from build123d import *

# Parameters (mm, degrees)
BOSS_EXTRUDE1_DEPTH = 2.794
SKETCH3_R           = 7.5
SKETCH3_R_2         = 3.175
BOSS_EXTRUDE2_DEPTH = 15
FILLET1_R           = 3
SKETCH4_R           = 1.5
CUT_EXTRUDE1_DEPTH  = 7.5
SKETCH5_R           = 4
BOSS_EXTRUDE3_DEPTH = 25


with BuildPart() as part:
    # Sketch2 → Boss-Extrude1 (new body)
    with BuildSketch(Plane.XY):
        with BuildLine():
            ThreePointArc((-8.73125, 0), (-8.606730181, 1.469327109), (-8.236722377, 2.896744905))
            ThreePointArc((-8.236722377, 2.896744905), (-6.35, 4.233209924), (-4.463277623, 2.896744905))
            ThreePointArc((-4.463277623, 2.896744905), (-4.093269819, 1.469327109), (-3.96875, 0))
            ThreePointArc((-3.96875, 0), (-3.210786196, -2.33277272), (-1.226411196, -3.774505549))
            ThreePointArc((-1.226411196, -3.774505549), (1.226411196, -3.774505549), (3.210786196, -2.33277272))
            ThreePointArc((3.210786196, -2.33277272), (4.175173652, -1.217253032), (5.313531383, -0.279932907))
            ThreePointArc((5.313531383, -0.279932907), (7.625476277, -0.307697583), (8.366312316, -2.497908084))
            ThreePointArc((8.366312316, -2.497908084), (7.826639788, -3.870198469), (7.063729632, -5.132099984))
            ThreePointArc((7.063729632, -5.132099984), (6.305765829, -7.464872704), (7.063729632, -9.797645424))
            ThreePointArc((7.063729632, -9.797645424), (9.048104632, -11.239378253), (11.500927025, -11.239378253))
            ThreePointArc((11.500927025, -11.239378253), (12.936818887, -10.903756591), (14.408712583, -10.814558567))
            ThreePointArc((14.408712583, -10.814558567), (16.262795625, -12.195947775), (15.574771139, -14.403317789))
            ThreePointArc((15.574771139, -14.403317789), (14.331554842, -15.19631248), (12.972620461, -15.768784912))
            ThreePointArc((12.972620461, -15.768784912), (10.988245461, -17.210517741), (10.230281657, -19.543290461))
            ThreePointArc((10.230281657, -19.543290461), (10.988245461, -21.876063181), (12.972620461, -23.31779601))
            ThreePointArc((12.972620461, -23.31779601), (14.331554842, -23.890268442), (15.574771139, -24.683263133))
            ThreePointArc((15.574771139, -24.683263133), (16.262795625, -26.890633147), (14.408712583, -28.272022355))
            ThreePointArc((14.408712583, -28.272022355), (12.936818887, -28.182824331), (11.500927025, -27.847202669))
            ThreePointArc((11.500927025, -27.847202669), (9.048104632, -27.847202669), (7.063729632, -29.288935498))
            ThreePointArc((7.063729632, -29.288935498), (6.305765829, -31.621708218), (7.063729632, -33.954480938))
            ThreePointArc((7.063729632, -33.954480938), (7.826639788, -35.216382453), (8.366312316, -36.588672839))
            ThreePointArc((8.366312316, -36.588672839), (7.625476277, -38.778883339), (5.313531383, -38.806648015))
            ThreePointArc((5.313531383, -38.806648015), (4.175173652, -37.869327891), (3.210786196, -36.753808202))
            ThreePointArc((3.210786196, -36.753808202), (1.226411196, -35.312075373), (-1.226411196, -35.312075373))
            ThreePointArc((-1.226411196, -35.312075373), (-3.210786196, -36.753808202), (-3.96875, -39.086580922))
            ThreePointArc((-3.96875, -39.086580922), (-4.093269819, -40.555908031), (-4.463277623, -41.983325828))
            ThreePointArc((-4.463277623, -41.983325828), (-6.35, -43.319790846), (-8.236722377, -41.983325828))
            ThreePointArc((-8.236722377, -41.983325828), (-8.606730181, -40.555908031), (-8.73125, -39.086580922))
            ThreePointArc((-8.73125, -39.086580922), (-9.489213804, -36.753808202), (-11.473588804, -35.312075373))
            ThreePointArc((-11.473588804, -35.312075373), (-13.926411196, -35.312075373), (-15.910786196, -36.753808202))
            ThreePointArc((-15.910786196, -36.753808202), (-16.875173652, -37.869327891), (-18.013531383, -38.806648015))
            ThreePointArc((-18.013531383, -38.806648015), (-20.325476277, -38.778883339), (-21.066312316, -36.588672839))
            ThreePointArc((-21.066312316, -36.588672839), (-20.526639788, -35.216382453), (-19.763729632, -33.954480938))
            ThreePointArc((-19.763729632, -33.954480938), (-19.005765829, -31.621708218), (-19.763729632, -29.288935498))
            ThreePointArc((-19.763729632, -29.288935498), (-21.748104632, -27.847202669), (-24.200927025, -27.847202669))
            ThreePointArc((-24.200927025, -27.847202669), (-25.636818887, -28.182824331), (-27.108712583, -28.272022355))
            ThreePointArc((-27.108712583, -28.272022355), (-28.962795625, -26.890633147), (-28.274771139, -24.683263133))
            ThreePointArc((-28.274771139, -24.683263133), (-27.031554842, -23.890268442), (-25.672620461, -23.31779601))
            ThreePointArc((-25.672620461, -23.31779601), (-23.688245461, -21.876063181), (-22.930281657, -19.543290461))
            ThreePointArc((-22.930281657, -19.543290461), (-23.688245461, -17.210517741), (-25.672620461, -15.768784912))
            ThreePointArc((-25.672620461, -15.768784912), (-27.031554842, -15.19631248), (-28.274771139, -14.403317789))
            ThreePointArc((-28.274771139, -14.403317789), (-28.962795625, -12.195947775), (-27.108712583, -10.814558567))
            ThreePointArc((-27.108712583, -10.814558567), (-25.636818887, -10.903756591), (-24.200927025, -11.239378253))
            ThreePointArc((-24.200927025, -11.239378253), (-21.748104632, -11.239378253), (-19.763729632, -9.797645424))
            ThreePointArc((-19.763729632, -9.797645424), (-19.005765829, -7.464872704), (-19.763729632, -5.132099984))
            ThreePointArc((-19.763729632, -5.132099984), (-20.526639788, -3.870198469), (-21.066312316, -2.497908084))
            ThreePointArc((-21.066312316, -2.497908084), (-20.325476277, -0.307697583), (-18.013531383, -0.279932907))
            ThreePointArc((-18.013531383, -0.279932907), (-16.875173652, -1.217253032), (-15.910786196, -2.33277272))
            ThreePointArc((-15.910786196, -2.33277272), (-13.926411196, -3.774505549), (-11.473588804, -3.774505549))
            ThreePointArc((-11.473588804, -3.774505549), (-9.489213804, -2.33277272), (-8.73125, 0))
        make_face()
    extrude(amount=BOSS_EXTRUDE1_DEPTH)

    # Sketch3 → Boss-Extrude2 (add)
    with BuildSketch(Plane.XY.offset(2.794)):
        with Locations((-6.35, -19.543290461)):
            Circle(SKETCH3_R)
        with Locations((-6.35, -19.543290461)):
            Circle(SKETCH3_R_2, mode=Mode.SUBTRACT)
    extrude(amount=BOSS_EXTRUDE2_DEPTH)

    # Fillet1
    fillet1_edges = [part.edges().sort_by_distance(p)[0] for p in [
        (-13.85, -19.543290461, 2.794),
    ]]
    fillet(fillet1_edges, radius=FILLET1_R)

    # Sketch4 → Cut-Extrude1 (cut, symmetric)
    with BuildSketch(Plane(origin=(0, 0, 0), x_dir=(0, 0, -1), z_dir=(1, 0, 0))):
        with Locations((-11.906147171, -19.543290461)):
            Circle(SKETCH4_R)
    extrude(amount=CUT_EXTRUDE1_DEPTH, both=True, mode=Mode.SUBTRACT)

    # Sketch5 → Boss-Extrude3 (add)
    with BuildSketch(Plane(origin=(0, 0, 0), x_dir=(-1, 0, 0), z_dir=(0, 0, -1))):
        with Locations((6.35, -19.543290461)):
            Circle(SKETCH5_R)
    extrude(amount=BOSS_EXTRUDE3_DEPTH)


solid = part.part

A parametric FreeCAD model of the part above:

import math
import FreeCAD as App
import Part
import Sketcher

V = App.Vector


def edges_at(feature, points):
    """Names of the edges that pass closest to the given points."""
    edges = feature.Shape.Edges
    near = lambda p: min(range(len(edges)), key=lambda i: edges[i].distToShape(Part.Vertex(*p))[0])
    return sorted({f"Edge{near(p) + 1}" for p in points})

doc = App.newDocument("Part")
params = doc.addObject("Spreadsheet::Sheet", "Params")
for row, (alias, value) in enumerate([
    ("sketch1_radius", "2 mm"),
    ("pad1_length", "2.794 mm"),
    ("sketch2_diameter", "15 mm"),
    ("sketch2_diameter2", "6.35 mm"),
    ("pad2_length", "15 mm"),
    ("fillet_radius", "3 mm"),
    ("sketch3_diameter", "3 mm"),
    ("pocket1_length", "15 mm"),
    ("sketch4_diameter", "8 mm"),
    ("pad3_length", "25 mm"),
], start=1):
    params.set(f"A{row}", alias)
    params.set(f"B{row}", "=" + value)
    params.setAlias(f"B{row}", alias)

body = doc.addObject("PartDesign::Body", "Body")

# Sketch on XY plane
sketch1 = body.newObject("Sketcher::SketchObject", "Sketch")
sketch1.AttachmentSupport = (doc.getObject("XY_Plane"), [""])
sketch1.MapMode = "FlatFace"
sketch1.addGeometry(Part.ArcOfCircle(Part.Circle(V(0, 0, 0), V(0, 0, 1), 8.7), math.radians(160.62), math.radians(180)), False)
sketch1.addGeometry(Part.ArcOfCircle(Part.Circle(V(-12.7, 0, 0), V(0, 0, 1), 4), math.radians(-72), math.radians(0)), False)
sketch1.addGeometry(Part.ArcOfCircle(Part.Circle(V(-12.7, 0, 0), V(0, 0, 1), 4), math.radians(-144), math.radians(-72)), False)
sketch1.addGeometry(Part.ArcOfCircle(Part.Circle(V(-23, -7.5, 0), V(0, 0, 1), 8.7), math.radians(36), math.radians(55.38)), False)
sketch1.addGeometry(Part.ArcOfCircle(Part.Circle(V(-19.1, -1.9, 0), V(0, 0, 1), 2), math.radians(55), math.radians(197)), False)
sketch1.addGeometry(Part.ArcOfCircle(Part.Circle(V(-12.7, 0, 0), V(0, 0, 1), 8.7), math.radians(-163.38), math.radians(-144)), False)
sketch1.addGeometry(Part.ArcOfCircle(Part.Circle(V(-23, -7.5, 0), V(0, 0, 1), 4), math.radians(-36), math.radians(36)), False)
sketch1.addGeometry(Part.ArcOfCircle(Part.Circle(V(-23, -7.5, 0), V(0, 0, 1), 4), math.radians(-108), math.radians(-36)), False)
sketch1.addGeometry(Part.ArcOfCircle(Part.Circle(V(-26.9, -19.5, 0), V(0, 0, 1), 8.7), math.radians(72), math.radians(91.38)), False)
sketch1.addGeometry(Part.ArcOfCircle(Part.Circle(V(-27.1, -12.8, 0), V(0, 0, 1), 2), math.radians(91), math.radians(233)), False)
sketch1.addGeometry(Part.ArcOfCircle(Part.Circle(V(-23, -7.5, 0), V(0, 0, 1), 8.7), math.radians(-127.38), math.radians(-108)), False)
sketch1.addGeometry(Part.ArcOfCircle(Part.Circle(V(-26.9, -19.5, 0), V(0, 0, 1), 4), math.radians(0), math.radians(72)), False)
sketch1.addGeometry(Part.ArcOfCircle(Part.Circle(V(-26.9, -19.5, 0), V(0, 0, 1), 4), math.radians(-72), math.radians(0)), False)
sketch1.addGeometry(Part.ArcOfCircle(Part.Circle(V(-23, -31.6, 0), V(0, 0, 1), 8.7), math.radians(108), math.radians(127.38)), False)
sketch1.addGeometry(Part.ArcOfCircle(Part.Circle(V(-27.1, -26.3, 0), V(0, 0, 1), 2), math.radians(127), math.radians(269)), False)
sketch1.addGeometry(Part.ArcOfCircle(Part.Circle(V(-26.9, -19.5, 0), V(0, 0, 1), 8.7), math.radians(-91.38), math.radians(-72)), False)
sketch1.addGeometry(Part.ArcOfCircle(Part.Circle(V(-23, -31.6, 0), V(0, 0, 1), 4), math.radians(36), math.radians(108)), False)
sketch1.addGeometry(Part.ArcOfCircle(Part.Circle(V(-23, -31.6, 0), V(0, 0, 1), 4), math.radians(-36), math.radians(36)), False)
sketch1.addGeometry(Part.ArcOfCircle(Part.Circle(V(-12.7, -39.1, 0), V(0, 0, 1), 8.7), math.radians(144), math.radians(163.38)), False)
sketch1.addGeometry(Part.ArcOfCircle(Part.Circle(V(-19.1, -37.2, 0), V(0, 0, 1), 2), math.radians(163), math.radians(305)), False)
sketch1.addGeometry(Part.ArcOfCircle(Part.Circle(V(-23, -31.6, 0), V(0, 0, 1), 8.7), math.radians(-55.38), math.radians(-36)), False)
sketch1.addGeometry(Part.ArcOfCircle(Part.Circle(V(-12.7, -39.1, 0), V(0, 0, 1), 4), math.radians(72), math.radians(144)), False)
sketch1.addGeometry(Part.ArcOfCircle(Part.Circle(V(-12.7, -39.1, 0), V(0, 0, 1), 4), math.radians(0), math.radians(72)), False)
sketch1.addGeometry(Part.ArcOfCircle(Part.Circle(V(0, -39.1, 0), V(0, 0, 1), 8.7), math.radians(-180), math.radians(-160.62)), False)
sketch1.addGeometry(Part.ArcOfCircle(Part.Circle(V(-6.3, -41.3, 0), V(0, 0, 1), 2), math.radians(-161), math.radians(-19)), False)
sketch1.addGeometry(Part.ArcOfCircle(Part.Circle(V(-12.7, -39.1, 0), V(0, 0, 1), 8.7), math.radians(-19.38), math.radians(0)), False)
sketch1.addGeometry(Part.ArcOfCircle(Part.Circle(V(0, -39.1, 0), V(0, 0, 1), 4), math.radians(108), math.radians(180)), False)
sketch1.addGeometry(Part.ArcOfCircle(Part.Circle(V(0, -39.1, 0), V(0, 0, 1), 4), math.radians(36), math.radians(108)), False)
sketch1.addGeometry(Part.ArcOfCircle(Part.Circle(V(10.3, -31.6, 0), V(0, 0, 1), 8.7), math.radians(-144), math.radians(-124.62)), False)
sketch1.addGeometry(Part.ArcOfCircle(Part.Circle(V(6.4, -37.2, 0), V(0, 0, 1), 2), math.radians(-125), math.radians(17)), False)
sketch1.addGeometry(Part.ArcOfCircle(Part.Circle(V(0, -39.1, 0), V(0, 0, 1), 8.7), math.radians(16.62), math.radians(36)), False)
sketch1.addGeometry(Part.ArcOfCircle(Part.Circle(V(10.3, -31.6, 0), V(0, 0, 1), 4), math.radians(144), math.radians(216)), False)
sketch1.addGeometry(Part.ArcOfCircle(Part.Circle(V(10.3, -31.6, 0), V(0, 0, 1), 4), math.radians(72), math.radians(144)), False)
sketch1.addGeometry(Part.ArcOfCircle(Part.Circle(V(14.2, -19.5, 0), V(0, 0, 1), 8.7), math.radians(-108), math.radians(-88.62)), False)
sketch1.addGeometry(Part.ArcOfCircle(Part.Circle(V(14.4, -26.3, 0), V(0, 0, 1), 2), math.radians(-89), math.radians(53)), False)
sketch1.addGeometry(Part.ArcOfCircle(Part.Circle(V(10.3, -31.6, 0), V(0, 0, 1), 8.7), math.radians(52.62), math.radians(72)), False)
sketch1.addGeometry(Part.ArcOfCircle(Part.Circle(V(14.2, -19.5, 0), V(0, 0, 1), 4), math.radians(-180), math.radians(-108)), False)
sketch1.addGeometry(Part.ArcOfCircle(Part.Circle(V(14.2, -19.5, 0), V(0, 0, 1), 4), math.radians(108), math.radians(180)), False)
sketch1.addGeometry(Part.ArcOfCircle(Part.Circle(V(10.3, -7.5, 0), V(0, 0, 1), 8.7), math.radians(-72), math.radians(-52.62)), False)
sketch1.addGeometry(Part.ArcOfCircle(Part.Circle(V(14.4, -12.8, 0), V(0, 0, 1), 2), math.radians(-53), math.radians(89)), False)
sketch1.addGeometry(Part.ArcOfCircle(Part.Circle(V(14.2, -19.5, 0), V(0, 0, 1), 8.7), math.radians(88.62), math.radians(108)), False)
sketch1.addGeometry(Part.ArcOfCircle(Part.Circle(V(10.3, -7.5, 0), V(0, 0, 1), 4), math.radians(-144), math.radians(-72)), False)
sketch1.addGeometry(Part.ArcOfCircle(Part.Circle(V(10.3, -7.5, 0), V(0, 0, 1), 4), math.radians(144), math.radians(216)), False)
sketch1.addGeometry(Part.ArcOfCircle(Part.Circle(V(0, 0, 0), V(0, 0, 1), 8.7), math.radians(-36), math.radians(-16.62)), False)
sketch1.addGeometry(Part.ArcOfCircle(Part.Circle(V(6.4, -1.9, 0), V(0, 0, 1), 2), math.radians(-17), math.radians(125)), False)
sketch1.addGeometry(Part.ArcOfCircle(Part.Circle(V(10.3, -7.5, 0), V(0, 0, 1), 8.7), math.radians(124.62), math.radians(144)), False)
sketch1.addGeometry(Part.ArcOfCircle(Part.Circle(V(0, 0, 0), V(0, 0, 1), 4), math.radians(-108), math.radians(-36)), False)
sketch1.addGeometry(Part.ArcOfCircle(Part.Circle(V(0, 0, 0), V(0, 0, 1), 4), math.radians(-180), math.radians(-108)), False)
sketch1.addGeometry(Part.ArcOfCircle(Part.Circle(V(-12.7, 0, 0), V(0, 0, 1), 8.7), math.radians(0), math.radians(19.38)), False)
sketch1.addGeometry(Part.ArcOfCircle(Part.Circle(V(-6.3, 2.2, 0), V(0, 0, 1), 2), math.radians(19), math.radians(161)), False)
sketch1.addConstraint(Sketcher.Constraint("Tangent", 0, 2, 1, 2))
sketch1.addConstraint(Sketcher.Constraint("Tangent", 1, 1, 2, 2))
sketch1.addConstraint(Sketcher.Constraint("Tangent", 2, 1, 3, 1))
sketch1.addConstraint(Sketcher.Constraint("Tangent", 3, 2, 4, 1))
sketch1.addConstraint(Sketcher.Constraint("Tangent", 4, 2, 5, 1))
sketch1.addConstraint(Sketcher.Constraint("Tangent", 5, 2, 6, 2))
sketch1.addConstraint(Sketcher.Constraint("Tangent", 6, 1, 7, 2))
sketch1.addConstraint(Sketcher.Constraint("Tangent", 7, 1, 8, 1))
sketch1.addConstraint(Sketcher.Constraint("Tangent", 8, 2, 9, 1))
sketch1.addConstraint(Sketcher.Constraint("Tangent", 9, 2, 10, 1))
sketch1.addConstraint(Sketcher.Constraint("Tangent", 10, 2, 11, 2))
sketch1.addConstraint(Sketcher.Constraint("Tangent", 11, 1, 12, 2))
sketch1.addConstraint(Sketcher.Constraint("Tangent", 12, 1, 13, 1))
sketch1.addConstraint(Sketcher.Constraint("Tangent", 13, 2, 14, 1))
sketch1.addConstraint(Sketcher.Constraint("Tangent", 14, 2, 15, 1))
sketch1.addConstraint(Sketcher.Constraint("Tangent", 15, 2, 16, 2))
sketch1.addConstraint(Sketcher.Constraint("Tangent", 16, 1, 17, 2))
sketch1.addConstraint(Sketcher.Constraint("Tangent", 17, 1, 18, 1))
sketch1.addConstraint(Sketcher.Constraint("Tangent", 18, 2, 19, 1))
sketch1.addConstraint(Sketcher.Constraint("Tangent", 19, 2, 20, 1))
sketch1.addConstraint(Sketcher.Constraint("Tangent", 20, 2, 21, 2))
sketch1.addConstraint(Sketcher.Constraint("Tangent", 21, 1, 22, 2))
sketch1.addConstraint(Sketcher.Constraint("Tangent", 22, 1, 23, 1))
sketch1.addConstraint(Sketcher.Constraint("Tangent", 23, 2, 24, 1))
sketch1.addConstraint(Sketcher.Constraint("Tangent", 24, 2, 25, 1))
sketch1.addConstraint(Sketcher.Constraint("Tangent", 25, 2, 26, 2))
sketch1.addConstraint(Sketcher.Constraint("Tangent", 26, 1, 27, 2))
sketch1.addConstraint(Sketcher.Constraint("Tangent", 27, 1, 28, 1))
sketch1.addConstraint(Sketcher.Constraint("Tangent", 28, 2, 29, 1))
sketch1.addConstraint(Sketcher.Constraint("Tangent", 29, 2, 30, 1))
sketch1.addConstraint(Sketcher.Constraint("Tangent", 30, 2, 31, 2))
sketch1.addConstraint(Sketcher.Constraint("Tangent", 31, 1, 32, 2))
sketch1.addConstraint(Sketcher.Constraint("Tangent", 32, 1, 33, 1))
sketch1.addConstraint(Sketcher.Constraint("Tangent", 33, 2, 34, 1))
sketch1.addConstraint(Sketcher.Constraint("Tangent", 34, 2, 35, 1))
sketch1.addConstraint(Sketcher.Constraint("Tangent", 35, 2, 36, 2))
sketch1.addConstraint(Sketcher.Constraint("Tangent", 36, 1, 37, 2))
sketch1.addConstraint(Sketcher.Constraint("Tangent", 37, 1, 38, 1))
sketch1.addConstraint(Sketcher.Constraint("Tangent", 38, 2, 39, 1))
sketch1.addConstraint(Sketcher.Constraint("Tangent", 39, 2, 40, 1))
sketch1.addConstraint(Sketcher.Constraint("Tangent", 40, 2, 41, 2))
sketch1.addConstraint(Sketcher.Constraint("Tangent", 41, 1, 42, 2))
sketch1.addConstraint(Sketcher.Constraint("Tangent", 42, 1, 43, 1))
sketch1.addConstraint(Sketcher.Constraint("Tangent", 43, 2, 44, 1))
sketch1.addConstraint(Sketcher.Constraint("Tangent", 44, 2, 45, 1))
sketch1.addConstraint(Sketcher.Constraint("Tangent", 45, 2, 46, 2))
sketch1.addConstraint(Sketcher.Constraint("Tangent", 46, 1, 47, 2))
sketch1.addConstraint(Sketcher.Constraint("Tangent", 47, 1, 48, 1))
sketch1.addConstraint(Sketcher.Constraint("Tangent", 48, 2, 49, 1))
sketch1.addConstraint(Sketcher.Constraint("Tangent", 49, 2, 0, 1))
sketch1.addConstraint(Sketcher.Constraint("Coincident", 0, 3, -1, 1))
sketch1.addConstraint(Sketcher.Constraint("Coincident", 43, 3, -1, 1))
sketch1.addConstraint(Sketcher.Constraint("Coincident", 46, 3, -1, 1))
sketch1.addConstraint(Sketcher.Constraint("Coincident", 5, 3, 1, 3))
sketch1.addConstraint(Sketcher.Constraint("Coincident", 6, 3, 3, 3))
sketch1.addConstraint(Sketcher.Constraint("Coincident", 10, 3, 3, 3))
sketch1.addConstraint(Sketcher.Constraint("Coincident", 11, 3, 8, 3))
sketch1.addConstraint(Sketcher.Constraint("Coincident", 15, 3, 8, 3))
sketch1.addConstraint(Sketcher.Constraint("Coincident", 16, 3, 13, 3))
sketch1.addConstraint(Sketcher.Constraint("Coincident", 20, 3, 13, 3))
sketch1.addConstraint(Sketcher.Constraint("Coincident", 21, 3, 18, 3))
sketch1.addConstraint(Sketcher.Constraint("Coincident", 25, 3, 18, 3))
sketch1.addConstraint(Sketcher.Constraint("Coincident", 26, 3, 23, 3))
sketch1.addConstraint(Sketcher.Constraint("Coincident", 30, 3, 23, 3))
sketch1.addConstraint(Sketcher.Constraint("Coincident", 31, 3, 28, 3))
sketch1.addConstraint(Sketcher.Constraint("Coincident", 35, 3, 28, 3))
sketch1.addConstraint(Sketcher.Constraint("Coincident", 36, 3, 33, 3))
sketch1.addConstraint(Sketcher.Constraint("Coincident", 40, 3, 33, 3))
sketch1.addConstraint(Sketcher.Constraint("Coincident", 41, 3, 38, 3))
sketch1.addConstraint(Sketcher.Constraint("Coincident", 45, 3, 38, 3))
sketch1.addConstraint(Sketcher.Constraint("Coincident", 48, 3, 1, 3))
sketch1.addConstraint(Sketcher.Constraint("Equal", 1, 2))
sketch1.addConstraint(Sketcher.Constraint("Equal", 0, 3))
sketch1.addConstraint(Sketcher.Constraint("Equal", 3, 5))
sketch1.addConstraint(Sketcher.Constraint("Equal", 6, 7))
sketch1.addConstraint(Sketcher.Constraint("Equal", 5, 8))
sketch1.addConstraint(Sketcher.Constraint("Equal", 4, 9))
sketch1.addConstraint(Sketcher.Constraint("Equal", 8, 10))
sketch1.addConstraint(Sketcher.Constraint("Equal", 11, 12))
sketch1.addConstraint(Sketcher.Constraint("Equal", 10, 13))
sketch1.addConstraint(Sketcher.Constraint("Equal", 9, 14))
sketch1.addConstraint(Sketcher.Constraint("Equal", 13, 15))
sketch1.addConstraint(Sketcher.Constraint("Equal", 16, 17))
sketch1.addConstraint(Sketcher.Constraint("Equal", 15, 18))
sketch1.addConstraint(Sketcher.Constraint("Equal", 14, 19))
sketch1.addConstraint(Sketcher.Constraint("Equal", 18, 20))
sketch1.addConstraint(Sketcher.Constraint("Equal", 21, 22))
sketch1.addConstraint(Sketcher.Constraint("Equal", 20, 23))
sketch1.addConstraint(Sketcher.Constraint("Equal", 19, 24))
sketch1.addConstraint(Sketcher.Constraint("Equal", 23, 25))
sketch1.addConstraint(Sketcher.Constraint("Equal", 26, 27))
sketch1.addConstraint(Sketcher.Constraint("Equal", 25, 28))
sketch1.addConstraint(Sketcher.Constraint("Equal", 24, 29))
sketch1.addConstraint(Sketcher.Constraint("Equal", 28, 30))
sketch1.addConstraint(Sketcher.Constraint("Equal", 31, 32))
sketch1.addConstraint(Sketcher.Constraint("Equal", 30, 33))
sketch1.addConstraint(Sketcher.Constraint("Equal", 29, 34))
sketch1.addConstraint(Sketcher.Constraint("Equal", 33, 35))
sketch1.addConstraint(Sketcher.Constraint("Equal", 36, 37))
sketch1.addConstraint(Sketcher.Constraint("Equal", 35, 38))
sketch1.addConstraint(Sketcher.Constraint("Equal", 34, 39))
sketch1.addConstraint(Sketcher.Constraint("Equal", 38, 40))
sketch1.addConstraint(Sketcher.Constraint("Equal", 41, 42))
sketch1.addConstraint(Sketcher.Constraint("Equal", 40, 43))
sketch1.addConstraint(Sketcher.Constraint("Equal", 39, 44))
sketch1.addConstraint(Sketcher.Constraint("Equal", 43, 45))
sketch1.addConstraint(Sketcher.Constraint("Equal", 46, 47))
sketch1.addConstraint(Sketcher.Constraint("Equal", 44, 49))
sketch1.addConstraint(Sketcher.Constraint("PointOnObject", 1, 3, -1))
sketch1.addConstraint(Sketcher.Constraint("PointOnObject", 23, 3, -2))
sketch1.addConstraint(Sketcher.Constraint("Horizontal", 22, 3, 23, 3))
sketch1.addConstraint(Sketcher.Constraint("Horizontal", 20, 3, 28, 3))
sketch1.addConstraint(Sketcher.Constraint("Horizontal", 15, 3, 33, 3))
sketch1.addConstraint(Sketcher.Constraint("Horizontal", 40, 3, 11, 1))
sketch1.addConstraint(Sketcher.Constraint("Horizontal", 21, 1, 26, 1))
sketch1.addConstraint(Sketcher.Constraint("Horizontal", 16, 1, 31, 1))
sketch1.addConstraint(Sketcher.Constraint("Horizontal", 11, 1, 36, 1))
sketch1.addConstraint(Sketcher.Constraint("Horizontal", 6, 1, 41, 1))
sketch1.addConstraint(Sketcher.Constraint("Horizontal", 1, 1, 46, 1))
sketch1.addConstraint(Sketcher.Constraint("Vertical", 10, 3, 13, 3))
sketch1.addConstraint(Sketcher.Constraint("Vertical", 5, 2, 6, 1))
sketch1.addConstraint(Sketcher.Constraint("Vertical", 6, 1, 16, 1))
sketch1.addConstraint(Sketcher.Constraint("Vertical", 1, 1, 21, 1))
sketch1.addConstraint(Sketcher.Constraint("Radius", 4, 2.0))
sketch1.addConstraint(Sketcher.Constraint("DistanceX", 1, 3, -1, 1, 12.7))
sketch1.addConstraint(Sketcher.Constraint("Radius", 0, 8.73125))
sketch1.addConstraint(Sketcher.Constraint("DistanceY", 14, 3, -1, 1, 26.272599))
sketch1.addConstraint(Sketcher.Constraint("DistanceY", 5, 2, -1, 1, 5.1321))
sketch1.addConstraint(Sketcher.Constraint("DistanceX", 1, 1, -1, 1, 11.473589))
sketch1.setExpression("Constraints[123]", "Params.sketch1_radius")
pad1 = body.newObject("PartDesign::Pad", "Pad")
pad1.Profile = sketch1
pad1.setExpression("Length", "Params.pad1_length")

# Sketch on XY plane
sketch2 = body.newObject("Sketcher::SketchObject", "Sketch001")
sketch2.AttachmentSupport = (doc.getObject("XY_Plane"), [""])
sketch2.MapMode = "FlatFace"
sketch2.AttachmentOffset = App.Placement(V(0, 0, 2.794), App.Rotation())
sketch2.addGeometry(Part.Circle(V(-6.3, -19.5, 0), V(0, 0, 1), 7.5), False)
sketch2.addGeometry(Part.Circle(V(-6.3, -19.5, 0), V(0, 0, 1), 3.2), False)
sketch2.addConstraint(Sketcher.Constraint("Coincident", 1, 3, 0, 3))
sketch2.addConstraint(Sketcher.Constraint("Diameter", 0, 15.0))
sketch2.addConstraint(Sketcher.Constraint("Diameter", 1, 6.35))
sketch2.addConstraint(Sketcher.Constraint("DistanceX", 0, 3, -1, 1, 6.35))
sketch2.addConstraint(Sketcher.Constraint("DistanceY", 0, 3, -1, 1, 19.54329))
sketch2.setExpression("Constraints[1]", "Params.sketch2_diameter")
sketch2.setExpression("Constraints[2]", "Params.sketch2_diameter2")
pad2 = body.newObject("PartDesign::Pad", "Pad001")
pad2.Profile = sketch2
pad2.setExpression("Length", "Params.pad2_length")
doc.recompute()

fillet = body.newObject("PartDesign::Fillet", "Fillet")
fillet.Base = (pad2, edges_at(pad2, [(-13.85, -19.543, 2.794)]))
fillet.setExpression("Radius", "Params.fillet_radius")

# Sketch on YZ plane
sketch3 = body.newObject("Sketcher::SketchObject", "Sketch002")
sketch3.AttachmentSupport = (doc.getObject("YZ_Plane"), [""])
sketch3.MapMode = "FlatFace"
sketch3.addGeometry(Part.Circle(V(-19.5, 11.9, 0), V(0, 0, 1), 1.5), False)
sketch3.addConstraint(Sketcher.Constraint("Diameter", 0, 3.0))
sketch3.addConstraint(Sketcher.Constraint("DistanceX", 0, 3, -1, 1, 19.54329))
sketch3.addConstraint(Sketcher.Constraint("DistanceY", -1, 1, 0, 3, 11.906147))
sketch3.setExpression("Constraints[0]", "Params.sketch3_diameter")
pocket1 = body.newObject("PartDesign::Pocket", "Pocket")
pocket1.Profile = sketch3
pocket1.setExpression("Length", "Params.pocket1_length")
pocket1.Midplane = True

# Sketch on XY plane
sketch4 = body.newObject("Sketcher::SketchObject", "Sketch003")
sketch4.AttachmentSupport = (doc.getObject("XY_Plane"), [""])
sketch4.MapMode = "FlatFace"
sketch4.addGeometry(Part.Circle(V(-6.3, -19.5, 0), V(0, 0, 1), 4), False)
sketch4.addConstraint(Sketcher.Constraint("Diameter", 0, 8.0))
sketch4.addConstraint(Sketcher.Constraint("DistanceX", 0, 3, -1, 1, 6.35))
sketch4.addConstraint(Sketcher.Constraint("DistanceY", 0, 3, -1, 1, 19.54329))
sketch4.setExpression("Constraints[0]", "Params.sketch4_diameter")
pad3 = body.newObject("PartDesign::Pad", "Pad002")
pad3.Profile = sketch4
pad3.setExpression("Length", "Params.pad3_length")
pad3.Reversed = True

doc.recompute()
